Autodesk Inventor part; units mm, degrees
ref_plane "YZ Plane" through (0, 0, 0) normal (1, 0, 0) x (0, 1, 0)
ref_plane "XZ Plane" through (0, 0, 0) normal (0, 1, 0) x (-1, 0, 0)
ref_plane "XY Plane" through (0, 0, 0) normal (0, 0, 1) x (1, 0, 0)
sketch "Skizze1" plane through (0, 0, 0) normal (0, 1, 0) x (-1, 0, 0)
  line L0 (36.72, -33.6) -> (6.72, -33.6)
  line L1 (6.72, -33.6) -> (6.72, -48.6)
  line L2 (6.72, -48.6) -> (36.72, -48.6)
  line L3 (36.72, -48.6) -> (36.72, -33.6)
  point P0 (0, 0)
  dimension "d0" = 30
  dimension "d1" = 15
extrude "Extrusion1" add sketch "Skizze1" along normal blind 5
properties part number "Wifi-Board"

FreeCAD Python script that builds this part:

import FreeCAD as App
import Part
import Sketcher


def add_polygon(sketch, points):
    """Adds a closed chain of lines whose ends are joined by coincident constraints."""
    first, n = sketch.GeometryCount, len(points)
    for a, b in zip(points, points[1:] + points[:1]):
        sketch.addGeometry(Part.LineSegment(App.Vector(*a, 0), App.Vector(*b, 0)), False)
    for i in range(n):
        sketch.addConstraint(Sketcher.Constraint("Coincident", first + i, 2, first + (i + 1) % n, 1))

doc = App.newDocument("Part")
body = doc.addObject("PartDesign::Body", "Body")

# Sketch on XZ plane
sketch1 = body.newObject("Sketcher::SketchObject", "Sketch")
sketch1.AttachmentSupport = (doc.getObject("XZ_Plane"), [""])
sketch1.MapMode = "FlatFace"
add_polygon(sketch1, [(-37, -49), (-37, -34), (-7, -34), (-7, -49)])  # lines 0-3
sketch1.addConstraint(Sketcher.Constraint("Vertical", 0))
sketch1.addConstraint(Sketcher.Constraint("Horizontal", 1))
sketch1.addConstraint(Sketcher.Constraint("Vertical", 2))
sketch1.addConstraint(Sketcher.Constraint("Horizontal", 3))
sketch1.addConstraint(Sketcher.Constraint("DistanceX", 1, 1, 1, 2, 30.0))
sketch1.addConstraint(Sketcher.Constraint("DistanceY", 0, 1, 0, 2, 15.0))
sketch1.addConstraint(Sketcher.Constraint("DistanceY", 0, 2, -1, 1, 33.6))
sketch1.addConstraint(Sketcher.Constraint("DistanceX", 0, 2, -1, 1, 36.72))
pad1 = body.newObject("PartDesign::Pad", "Pad")
pad1.Profile = sketch1
pad1.Length = 5
pad1.Reversed = True

doc.recompute()
